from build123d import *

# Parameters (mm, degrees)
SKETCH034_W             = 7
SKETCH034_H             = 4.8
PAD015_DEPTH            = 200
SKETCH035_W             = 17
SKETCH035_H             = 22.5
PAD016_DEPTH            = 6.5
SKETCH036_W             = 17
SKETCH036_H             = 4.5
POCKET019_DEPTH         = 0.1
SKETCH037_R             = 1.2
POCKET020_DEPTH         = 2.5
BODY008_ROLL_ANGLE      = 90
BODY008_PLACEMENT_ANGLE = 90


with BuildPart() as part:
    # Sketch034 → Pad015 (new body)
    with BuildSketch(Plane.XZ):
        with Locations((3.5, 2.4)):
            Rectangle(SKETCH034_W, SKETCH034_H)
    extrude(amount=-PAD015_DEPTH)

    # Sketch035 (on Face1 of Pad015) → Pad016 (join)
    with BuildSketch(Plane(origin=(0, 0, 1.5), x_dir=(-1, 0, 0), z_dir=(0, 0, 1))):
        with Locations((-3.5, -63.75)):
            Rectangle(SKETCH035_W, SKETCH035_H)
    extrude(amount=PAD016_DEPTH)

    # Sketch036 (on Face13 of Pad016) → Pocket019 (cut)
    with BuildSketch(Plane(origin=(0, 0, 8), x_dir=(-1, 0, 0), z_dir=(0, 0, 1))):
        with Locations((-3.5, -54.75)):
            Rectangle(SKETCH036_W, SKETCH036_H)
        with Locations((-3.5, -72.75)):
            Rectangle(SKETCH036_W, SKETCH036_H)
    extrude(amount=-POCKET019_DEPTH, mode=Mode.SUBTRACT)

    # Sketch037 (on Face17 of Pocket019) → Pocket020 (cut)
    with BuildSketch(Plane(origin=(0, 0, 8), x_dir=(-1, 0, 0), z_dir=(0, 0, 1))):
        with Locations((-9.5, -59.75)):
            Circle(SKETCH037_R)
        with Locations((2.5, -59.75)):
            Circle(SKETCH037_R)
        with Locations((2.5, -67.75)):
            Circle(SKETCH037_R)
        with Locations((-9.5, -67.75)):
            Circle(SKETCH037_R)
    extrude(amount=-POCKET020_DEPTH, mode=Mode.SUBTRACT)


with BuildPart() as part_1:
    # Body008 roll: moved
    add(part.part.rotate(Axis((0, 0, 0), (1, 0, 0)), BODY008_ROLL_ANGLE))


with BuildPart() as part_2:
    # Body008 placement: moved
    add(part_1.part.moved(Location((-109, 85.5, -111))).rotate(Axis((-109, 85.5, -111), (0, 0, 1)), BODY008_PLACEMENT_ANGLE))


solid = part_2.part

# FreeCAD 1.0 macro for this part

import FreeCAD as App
import Part
import Sketcher
from FreeCAD import Vector

doc = App.newDocument("Part")
params = doc.addObject("Spreadsheet::Sheet", "Params")
for row, (alias, value) in enumerate([
    ("sketch1_width", "7 mm"),
    ("sketch1_height", "4.8 mm"),
    ("pad1_length", "200 mm"),
    ("sketch2_width", "17 mm"),
    ("sketch2_height", "22.5 mm"),
    ("pad2_length", "6.5 mm"),
    ("sketch3_width", "17 mm"),
    ("sketch3_height", "4.5 mm"),
    ("pocket1_length", "0.1 mm"),
    ("sketch4_diameter", "2.4 mm"),
    ("pocket2_length", "2.5 mm"),
], start=1):
    params.set(f"A{row}", alias)
    params.set(f"B{row}", "=" + value)
    params.setAlias(f"B{row}", alias)

body = doc.addObject("PartDesign::Body", "Body")

# Sketch on XZ plane
sketch1 = body.newObject("Sketcher::SketchObject", "Sketch")
sketch1.AttachmentSupport = (doc.getObject("XZ_Plane"), [""])
sketch1.MapMode = "FlatFace"
sketch1.addGeometry(Part.LineSegment(Vector(0, 4.8, 0), Vector(0, 0, 0)), False)
sketch1.addGeometry(Part.LineSegment(Vector(0, 0, 0), Vector(7, 0, 0)), False)
sketch1.addGeometry(Part.LineSegment(Vector(7, 0, 0), Vector(7, 4.8, 0)), False)
sketch1.addGeometry(Part.LineSegment(Vector(7, 4.8, 0), Vector(0, 4.8, 0)), False)
sketch1.addConstraint(Sketcher.Constraint("Coincident", 0, 2, 1, 1))
sketch1.addConstraint(Sketcher.Constraint("Coincident", 1, 2, 2, 1))
sketch1.addConstraint(Sketcher.Constraint("Coincident", 2, 2, 3, 1))
sketch1.addConstraint(Sketcher.Constraint("Coincident", 3, 2, 0, 1))
sketch1.addConstraint(Sketcher.Constraint("Vertical", 0))
sketch1.addConstraint(Sketcher.Constraint("Horizontal", 1))
sketch1.addConstraint(Sketcher.Constraint("Vertical", 2))
sketch1.addConstraint(Sketcher.Constraint("Horizontal", 3))
sketch1.addConstraint(Sketcher.Constraint("Coincident", 0, 2, -1, 1))
sketch1.addConstraint(Sketcher.Constraint("DistanceX", 1, 1, 1, 2, 7.0))
sketch1.addConstraint(Sketcher.Constraint("DistanceY", 0, 2, 0, 1, 4.8))
sketch1.setExpression("Constraints[9]", "Params.sketch1_width")
sketch1.setExpression("Constraints[10]", "Params.sketch1_height")
pad1 = body.newObject("PartDesign::Pad", "Pad")
pad1.Profile = sketch1
pad1.setExpression("Length", "Params.pad1_length")
pad1.Reversed = True

# Sketch on XY plane
sketch2 = body.newObject("Sketcher::SketchObject", "Sketch001")
sketch2.AttachmentSupport = (doc.getObject("XY_Plane"), [""])
sketch2.MapMode = "FlatFace"
sketch2.AttachmentOffset = App.Placement(Vector(0, 0, 1.5), App.Rotation())
sketch2.addGeometry(Part.LineSegment(Vector(12, 52, 0), Vector(12, 75, 0)), False)
sketch2.addGeometry(Part.LineSegment(Vector(12, 75, 0), Vector(-5, 75, 0)), False)
sketch2.addGeometry(Part.LineSegment(Vector(-5, 75, 0), Vector(-5, 52, 0)), False)
sketch2.addGeometry(Part.LineSegment(Vector(-5, 52, 0), Vector(12, 52, 0)), False)
sketch2.addConstraint(Sketcher.Constraint("Coincident", 0, 2, 1, 1))
sketch2.addConstraint(Sketcher.Constraint("Coincident", 1, 2, 2, 1))
sketch2.addConstraint(Sketcher.Constraint("Coincident", 2, 2, 3, 1))
sketch2.addConstraint(Sketcher.Constraint("Coincident", 3, 2, 0, 1))
sketch2.addConstraint(Sketcher.Constraint("Vertical", 0))
sketch2.addConstraint(Sketcher.Constraint("Horizontal", 1))
sketch2.addConstraint(Sketcher.Constraint("Vertical", 2))
sketch2.addConstraint(Sketcher.Constraint("Horizontal", 3))
sketch2.addConstraint(Sketcher.Constraint("DistanceX", 1, 2, 1, 1, 17.0))
sketch2.addConstraint(Sketcher.Constraint("DistanceY", 0, 1, 0, 2, 22.5))
sketch2.addConstraint(Sketcher.Constraint("DistanceX", -1, 1, 0, 2, 12.0))
sketch2.addConstraint(Sketcher.Constraint("DistanceY", -1, 1, 0, 2, 75.0))
sketch2.setExpression("Constraints[8]", "Params.sketch2_width")
sketch2.setExpression("Constraints[9]", "Params.sketch2_height")
pad2 = body.newObject("PartDesign::Pad", "Pad001")
pad2.Profile = sketch2
pad2.setExpression("Length", "Params.pad2_length")

# Sketch on XY plane
sketch3 = body.newObject("Sketcher::SketchObject", "Sketch002")
sketch3.AttachmentSupport = (doc.getObject("XY_Plane"), [""])
sketch3.MapMode = "FlatFace"
sketch3.AttachmentOffset = App.Placement(Vector(0, 0, 8), App.Rotation())
sketch3.addGeometry(Part.LineSegment(Vector(12, 52.5, 0), Vector(12, 57, 0)), False)
sketch3.addGeometry(Part.LineSegment(Vector(12, 57, 0), Vector(-5, 57, 0)), False)
sketch3.addGeometry(Part.LineSegment(Vector(-5, 57, 0), Vector(-5, 52.5, 0)), False)
sketch3.addGeometry(Part.LineSegment(Vector(-5, 52.5, 0), Vector(12, 52.5, 0)), False)
sketch3.addGeometry(Part.LineSegment(Vector(12, 70.5, 0), Vector(12, 75, 0)), False)
sketch3.addGeometry(Part.LineSegment(Vector(12, 75, 0), Vector(-5, 75, 0)), False)
sketch3.addGeometry(Part.LineSegment(Vector(-5, 75, 0), Vector(-5, 70.5, 0)), False)
sketch3.addGeometry(Part.LineSegment(Vector(-5, 70.5, 0), Vector(12, 70.5, 0)), False)
sketch3.addConstraint(Sketcher.Constraint("Coincident", 0, 2, 1, 1))
sketch3.addConstraint(Sketcher.Constraint("Coincident", 1, 2, 2, 1))
sketch3.addConstraint(Sketcher.Constraint("Coincident", 2, 2, 3, 1))
sketch3.addConstraint(Sketcher.Constraint("Coincident", 3, 2, 0, 1))
sketch3.addConstraint(Sketcher.Constraint("Coincident", 4, 2, 5, 1))
sketch3.addConstraint(Sketcher.Constraint("Coincident", 5, 2, 6, 1))
sketch3.addConstraint(Sketcher.Constraint("Coincident", 6, 2, 7, 1))
sketch3.addConstraint(Sketcher.Constraint("Coincident", 7, 2, 4, 1))
sketch3.addConstraint(Sketcher.Constraint("Vertical", 0))
sketch3.addConstraint(Sketcher.Constraint("Horizontal", 1))
sketch3.addConstraint(Sketcher.Constraint("Vertical", 2))
sketch3.addConstraint(Sketcher.Constraint("Horizontal", 3))
sketch3.addConstraint(Sketcher.Constraint("Vertical", 4))
sketch3.addConstraint(Sketcher.Constraint("Horizontal", 5))
sketch3.addConstraint(Sketcher.Constraint("Vertical", 6))
sketch3.addConstraint(Sketcher.Constraint("Horizontal", 7))
sketch3.addConstraint(Sketcher.Constraint("Vertical", 3, 2, 4, 2))
sketch3.addConstraint(Sketcher.Constraint("Vertical", 2, 2, 5, 2))
sketch3.addConstraint(Sketcher.Constraint("Equal", 2, 4))
sketch3.addConstraint(Sketcher.Constraint("DistanceX", 1, 2, 1, 1, 17.0))
sketch3.addConstraint(Sketcher.Constraint("DistanceY", 0, 1, 0, 2, 4.5))
sketch3.addConstraint(Sketcher.Constraint("DistanceX", -1, 1, 0, 2, 12.0))
sketch3.addConstraint(Sketcher.Constraint("DistanceY", -1, 1, 0, 2, 57.0))
sketch3.addConstraint(Sketcher.Constraint("DistanceY", -1, 1, 4, 2, 75.0))
sketch3.setExpression("Constraints[19]", "Params.sketch3_width")
sketch3.setExpression("Constraints[20]", "Params.sketch3_height")
pocket1 = body.newObject("PartDesign::Pocket", "Pocket")
pocket1.Profile = sketch3
pocket1.setExpression("Length", "Params.pocket1_length")

# Sketch on XY plane
sketch4 = body.newObject("Sketcher::SketchObject", "Sketch003")
sketch4.AttachmentSupport = (doc.getObject("XY_Plane"), [""])
sketch4.MapMode = "FlatFace"
sketch4.AttachmentOffset = App.Placement(Vector(0, 0, 8), App.Rotation())
sketch4.addGeometry(Part.Circle(Vector(9.5, 59.8, 0), Vector(0, 0, 1), 1.2), False)
sketch4.addGeometry(Part.Circle(Vector(-2.5, 59.8, 0), Vector(0, 0, 1), 1.2), False)
sketch4.addGeometry(Part.Circle(Vector(-2.5, 67.8, 0), Vector(0, 0, 1), 1.2), False)
sketch4.addGeometry(Part.Circle(Vector(9.5, 67.8, 0), Vector(0, 0, 1), 1.2), False)
sketch4.addConstraint(Sketcher.Constraint("Equal", 0, 1))
sketch4.addConstraint(Sketcher.Constraint("Equal", 1, 2))
sketch4.addConstraint(Sketcher.Constraint("Equal", 2, 3))
sketch4.addConstraint(Sketcher.Constraint("Horizontal", 0, 3, 1, 3))
sketch4.addConstraint(Sketcher.Constraint("Horizontal", 2, 3, 3, 3))
sketch4.addConstraint(Sketcher.Constraint("Vertical", 1, 3, 2, 3))
sketch4.addConstraint(Sketcher.Constraint("Vertical", 0, 3, 3, 3))
sketch4.addConstraint(Sketcher.Constraint("Diameter", 0, 2.4))
sketch4.addConstraint(Sketcher.Constraint("DistanceX", 1, 3, 0, 3, 12.0))
sketch4.addConstraint(Sketcher.Constraint("DistanceY", 1, 3, 2, 3, 8.0))
sketch4.addConstraint(Sketcher.Constraint("DistanceX", -1, 1, 0, 3, 9.5))
sketch4.addConstraint(Sketcher.Constraint("DistanceY", -1, 1, 0, 3, 59.75))
sketch4.setExpression("Constraints[7]", "Params.sketch4_diameter")
pocket2 = body.newObject("PartDesign::Pocket", "Pocket001")
pocket2.Profile = sketch4
pocket2.setExpression("Length", "Params.pocket2_length")
body2 = doc.addObject("PartDesign::Body", "Body001")
doc.recompute()

body.Placement = App.Placement(Vector(0, 0, 0), App.Rotation(Vector(1, 0, 0), 90))
boolean = body2.newObject("PartDesign::Boolean", "Boolean")
boolean.Type = "Fuse"
boolean.addObjects([body])
body3 = doc.addObject("PartDesign::Body", "Body002")
doc.recompute()

body2.Placement = App.Placement(Vector(-109, 85.5, -111), App.Rotation(Vector(0, 0, 1), 90))
boolean2 = body3.newObject("PartDesign::Boolean", "Boolean001")
boolean2.Type = "Fuse"
boolean2.addObjects([body2])

doc.recompute()
